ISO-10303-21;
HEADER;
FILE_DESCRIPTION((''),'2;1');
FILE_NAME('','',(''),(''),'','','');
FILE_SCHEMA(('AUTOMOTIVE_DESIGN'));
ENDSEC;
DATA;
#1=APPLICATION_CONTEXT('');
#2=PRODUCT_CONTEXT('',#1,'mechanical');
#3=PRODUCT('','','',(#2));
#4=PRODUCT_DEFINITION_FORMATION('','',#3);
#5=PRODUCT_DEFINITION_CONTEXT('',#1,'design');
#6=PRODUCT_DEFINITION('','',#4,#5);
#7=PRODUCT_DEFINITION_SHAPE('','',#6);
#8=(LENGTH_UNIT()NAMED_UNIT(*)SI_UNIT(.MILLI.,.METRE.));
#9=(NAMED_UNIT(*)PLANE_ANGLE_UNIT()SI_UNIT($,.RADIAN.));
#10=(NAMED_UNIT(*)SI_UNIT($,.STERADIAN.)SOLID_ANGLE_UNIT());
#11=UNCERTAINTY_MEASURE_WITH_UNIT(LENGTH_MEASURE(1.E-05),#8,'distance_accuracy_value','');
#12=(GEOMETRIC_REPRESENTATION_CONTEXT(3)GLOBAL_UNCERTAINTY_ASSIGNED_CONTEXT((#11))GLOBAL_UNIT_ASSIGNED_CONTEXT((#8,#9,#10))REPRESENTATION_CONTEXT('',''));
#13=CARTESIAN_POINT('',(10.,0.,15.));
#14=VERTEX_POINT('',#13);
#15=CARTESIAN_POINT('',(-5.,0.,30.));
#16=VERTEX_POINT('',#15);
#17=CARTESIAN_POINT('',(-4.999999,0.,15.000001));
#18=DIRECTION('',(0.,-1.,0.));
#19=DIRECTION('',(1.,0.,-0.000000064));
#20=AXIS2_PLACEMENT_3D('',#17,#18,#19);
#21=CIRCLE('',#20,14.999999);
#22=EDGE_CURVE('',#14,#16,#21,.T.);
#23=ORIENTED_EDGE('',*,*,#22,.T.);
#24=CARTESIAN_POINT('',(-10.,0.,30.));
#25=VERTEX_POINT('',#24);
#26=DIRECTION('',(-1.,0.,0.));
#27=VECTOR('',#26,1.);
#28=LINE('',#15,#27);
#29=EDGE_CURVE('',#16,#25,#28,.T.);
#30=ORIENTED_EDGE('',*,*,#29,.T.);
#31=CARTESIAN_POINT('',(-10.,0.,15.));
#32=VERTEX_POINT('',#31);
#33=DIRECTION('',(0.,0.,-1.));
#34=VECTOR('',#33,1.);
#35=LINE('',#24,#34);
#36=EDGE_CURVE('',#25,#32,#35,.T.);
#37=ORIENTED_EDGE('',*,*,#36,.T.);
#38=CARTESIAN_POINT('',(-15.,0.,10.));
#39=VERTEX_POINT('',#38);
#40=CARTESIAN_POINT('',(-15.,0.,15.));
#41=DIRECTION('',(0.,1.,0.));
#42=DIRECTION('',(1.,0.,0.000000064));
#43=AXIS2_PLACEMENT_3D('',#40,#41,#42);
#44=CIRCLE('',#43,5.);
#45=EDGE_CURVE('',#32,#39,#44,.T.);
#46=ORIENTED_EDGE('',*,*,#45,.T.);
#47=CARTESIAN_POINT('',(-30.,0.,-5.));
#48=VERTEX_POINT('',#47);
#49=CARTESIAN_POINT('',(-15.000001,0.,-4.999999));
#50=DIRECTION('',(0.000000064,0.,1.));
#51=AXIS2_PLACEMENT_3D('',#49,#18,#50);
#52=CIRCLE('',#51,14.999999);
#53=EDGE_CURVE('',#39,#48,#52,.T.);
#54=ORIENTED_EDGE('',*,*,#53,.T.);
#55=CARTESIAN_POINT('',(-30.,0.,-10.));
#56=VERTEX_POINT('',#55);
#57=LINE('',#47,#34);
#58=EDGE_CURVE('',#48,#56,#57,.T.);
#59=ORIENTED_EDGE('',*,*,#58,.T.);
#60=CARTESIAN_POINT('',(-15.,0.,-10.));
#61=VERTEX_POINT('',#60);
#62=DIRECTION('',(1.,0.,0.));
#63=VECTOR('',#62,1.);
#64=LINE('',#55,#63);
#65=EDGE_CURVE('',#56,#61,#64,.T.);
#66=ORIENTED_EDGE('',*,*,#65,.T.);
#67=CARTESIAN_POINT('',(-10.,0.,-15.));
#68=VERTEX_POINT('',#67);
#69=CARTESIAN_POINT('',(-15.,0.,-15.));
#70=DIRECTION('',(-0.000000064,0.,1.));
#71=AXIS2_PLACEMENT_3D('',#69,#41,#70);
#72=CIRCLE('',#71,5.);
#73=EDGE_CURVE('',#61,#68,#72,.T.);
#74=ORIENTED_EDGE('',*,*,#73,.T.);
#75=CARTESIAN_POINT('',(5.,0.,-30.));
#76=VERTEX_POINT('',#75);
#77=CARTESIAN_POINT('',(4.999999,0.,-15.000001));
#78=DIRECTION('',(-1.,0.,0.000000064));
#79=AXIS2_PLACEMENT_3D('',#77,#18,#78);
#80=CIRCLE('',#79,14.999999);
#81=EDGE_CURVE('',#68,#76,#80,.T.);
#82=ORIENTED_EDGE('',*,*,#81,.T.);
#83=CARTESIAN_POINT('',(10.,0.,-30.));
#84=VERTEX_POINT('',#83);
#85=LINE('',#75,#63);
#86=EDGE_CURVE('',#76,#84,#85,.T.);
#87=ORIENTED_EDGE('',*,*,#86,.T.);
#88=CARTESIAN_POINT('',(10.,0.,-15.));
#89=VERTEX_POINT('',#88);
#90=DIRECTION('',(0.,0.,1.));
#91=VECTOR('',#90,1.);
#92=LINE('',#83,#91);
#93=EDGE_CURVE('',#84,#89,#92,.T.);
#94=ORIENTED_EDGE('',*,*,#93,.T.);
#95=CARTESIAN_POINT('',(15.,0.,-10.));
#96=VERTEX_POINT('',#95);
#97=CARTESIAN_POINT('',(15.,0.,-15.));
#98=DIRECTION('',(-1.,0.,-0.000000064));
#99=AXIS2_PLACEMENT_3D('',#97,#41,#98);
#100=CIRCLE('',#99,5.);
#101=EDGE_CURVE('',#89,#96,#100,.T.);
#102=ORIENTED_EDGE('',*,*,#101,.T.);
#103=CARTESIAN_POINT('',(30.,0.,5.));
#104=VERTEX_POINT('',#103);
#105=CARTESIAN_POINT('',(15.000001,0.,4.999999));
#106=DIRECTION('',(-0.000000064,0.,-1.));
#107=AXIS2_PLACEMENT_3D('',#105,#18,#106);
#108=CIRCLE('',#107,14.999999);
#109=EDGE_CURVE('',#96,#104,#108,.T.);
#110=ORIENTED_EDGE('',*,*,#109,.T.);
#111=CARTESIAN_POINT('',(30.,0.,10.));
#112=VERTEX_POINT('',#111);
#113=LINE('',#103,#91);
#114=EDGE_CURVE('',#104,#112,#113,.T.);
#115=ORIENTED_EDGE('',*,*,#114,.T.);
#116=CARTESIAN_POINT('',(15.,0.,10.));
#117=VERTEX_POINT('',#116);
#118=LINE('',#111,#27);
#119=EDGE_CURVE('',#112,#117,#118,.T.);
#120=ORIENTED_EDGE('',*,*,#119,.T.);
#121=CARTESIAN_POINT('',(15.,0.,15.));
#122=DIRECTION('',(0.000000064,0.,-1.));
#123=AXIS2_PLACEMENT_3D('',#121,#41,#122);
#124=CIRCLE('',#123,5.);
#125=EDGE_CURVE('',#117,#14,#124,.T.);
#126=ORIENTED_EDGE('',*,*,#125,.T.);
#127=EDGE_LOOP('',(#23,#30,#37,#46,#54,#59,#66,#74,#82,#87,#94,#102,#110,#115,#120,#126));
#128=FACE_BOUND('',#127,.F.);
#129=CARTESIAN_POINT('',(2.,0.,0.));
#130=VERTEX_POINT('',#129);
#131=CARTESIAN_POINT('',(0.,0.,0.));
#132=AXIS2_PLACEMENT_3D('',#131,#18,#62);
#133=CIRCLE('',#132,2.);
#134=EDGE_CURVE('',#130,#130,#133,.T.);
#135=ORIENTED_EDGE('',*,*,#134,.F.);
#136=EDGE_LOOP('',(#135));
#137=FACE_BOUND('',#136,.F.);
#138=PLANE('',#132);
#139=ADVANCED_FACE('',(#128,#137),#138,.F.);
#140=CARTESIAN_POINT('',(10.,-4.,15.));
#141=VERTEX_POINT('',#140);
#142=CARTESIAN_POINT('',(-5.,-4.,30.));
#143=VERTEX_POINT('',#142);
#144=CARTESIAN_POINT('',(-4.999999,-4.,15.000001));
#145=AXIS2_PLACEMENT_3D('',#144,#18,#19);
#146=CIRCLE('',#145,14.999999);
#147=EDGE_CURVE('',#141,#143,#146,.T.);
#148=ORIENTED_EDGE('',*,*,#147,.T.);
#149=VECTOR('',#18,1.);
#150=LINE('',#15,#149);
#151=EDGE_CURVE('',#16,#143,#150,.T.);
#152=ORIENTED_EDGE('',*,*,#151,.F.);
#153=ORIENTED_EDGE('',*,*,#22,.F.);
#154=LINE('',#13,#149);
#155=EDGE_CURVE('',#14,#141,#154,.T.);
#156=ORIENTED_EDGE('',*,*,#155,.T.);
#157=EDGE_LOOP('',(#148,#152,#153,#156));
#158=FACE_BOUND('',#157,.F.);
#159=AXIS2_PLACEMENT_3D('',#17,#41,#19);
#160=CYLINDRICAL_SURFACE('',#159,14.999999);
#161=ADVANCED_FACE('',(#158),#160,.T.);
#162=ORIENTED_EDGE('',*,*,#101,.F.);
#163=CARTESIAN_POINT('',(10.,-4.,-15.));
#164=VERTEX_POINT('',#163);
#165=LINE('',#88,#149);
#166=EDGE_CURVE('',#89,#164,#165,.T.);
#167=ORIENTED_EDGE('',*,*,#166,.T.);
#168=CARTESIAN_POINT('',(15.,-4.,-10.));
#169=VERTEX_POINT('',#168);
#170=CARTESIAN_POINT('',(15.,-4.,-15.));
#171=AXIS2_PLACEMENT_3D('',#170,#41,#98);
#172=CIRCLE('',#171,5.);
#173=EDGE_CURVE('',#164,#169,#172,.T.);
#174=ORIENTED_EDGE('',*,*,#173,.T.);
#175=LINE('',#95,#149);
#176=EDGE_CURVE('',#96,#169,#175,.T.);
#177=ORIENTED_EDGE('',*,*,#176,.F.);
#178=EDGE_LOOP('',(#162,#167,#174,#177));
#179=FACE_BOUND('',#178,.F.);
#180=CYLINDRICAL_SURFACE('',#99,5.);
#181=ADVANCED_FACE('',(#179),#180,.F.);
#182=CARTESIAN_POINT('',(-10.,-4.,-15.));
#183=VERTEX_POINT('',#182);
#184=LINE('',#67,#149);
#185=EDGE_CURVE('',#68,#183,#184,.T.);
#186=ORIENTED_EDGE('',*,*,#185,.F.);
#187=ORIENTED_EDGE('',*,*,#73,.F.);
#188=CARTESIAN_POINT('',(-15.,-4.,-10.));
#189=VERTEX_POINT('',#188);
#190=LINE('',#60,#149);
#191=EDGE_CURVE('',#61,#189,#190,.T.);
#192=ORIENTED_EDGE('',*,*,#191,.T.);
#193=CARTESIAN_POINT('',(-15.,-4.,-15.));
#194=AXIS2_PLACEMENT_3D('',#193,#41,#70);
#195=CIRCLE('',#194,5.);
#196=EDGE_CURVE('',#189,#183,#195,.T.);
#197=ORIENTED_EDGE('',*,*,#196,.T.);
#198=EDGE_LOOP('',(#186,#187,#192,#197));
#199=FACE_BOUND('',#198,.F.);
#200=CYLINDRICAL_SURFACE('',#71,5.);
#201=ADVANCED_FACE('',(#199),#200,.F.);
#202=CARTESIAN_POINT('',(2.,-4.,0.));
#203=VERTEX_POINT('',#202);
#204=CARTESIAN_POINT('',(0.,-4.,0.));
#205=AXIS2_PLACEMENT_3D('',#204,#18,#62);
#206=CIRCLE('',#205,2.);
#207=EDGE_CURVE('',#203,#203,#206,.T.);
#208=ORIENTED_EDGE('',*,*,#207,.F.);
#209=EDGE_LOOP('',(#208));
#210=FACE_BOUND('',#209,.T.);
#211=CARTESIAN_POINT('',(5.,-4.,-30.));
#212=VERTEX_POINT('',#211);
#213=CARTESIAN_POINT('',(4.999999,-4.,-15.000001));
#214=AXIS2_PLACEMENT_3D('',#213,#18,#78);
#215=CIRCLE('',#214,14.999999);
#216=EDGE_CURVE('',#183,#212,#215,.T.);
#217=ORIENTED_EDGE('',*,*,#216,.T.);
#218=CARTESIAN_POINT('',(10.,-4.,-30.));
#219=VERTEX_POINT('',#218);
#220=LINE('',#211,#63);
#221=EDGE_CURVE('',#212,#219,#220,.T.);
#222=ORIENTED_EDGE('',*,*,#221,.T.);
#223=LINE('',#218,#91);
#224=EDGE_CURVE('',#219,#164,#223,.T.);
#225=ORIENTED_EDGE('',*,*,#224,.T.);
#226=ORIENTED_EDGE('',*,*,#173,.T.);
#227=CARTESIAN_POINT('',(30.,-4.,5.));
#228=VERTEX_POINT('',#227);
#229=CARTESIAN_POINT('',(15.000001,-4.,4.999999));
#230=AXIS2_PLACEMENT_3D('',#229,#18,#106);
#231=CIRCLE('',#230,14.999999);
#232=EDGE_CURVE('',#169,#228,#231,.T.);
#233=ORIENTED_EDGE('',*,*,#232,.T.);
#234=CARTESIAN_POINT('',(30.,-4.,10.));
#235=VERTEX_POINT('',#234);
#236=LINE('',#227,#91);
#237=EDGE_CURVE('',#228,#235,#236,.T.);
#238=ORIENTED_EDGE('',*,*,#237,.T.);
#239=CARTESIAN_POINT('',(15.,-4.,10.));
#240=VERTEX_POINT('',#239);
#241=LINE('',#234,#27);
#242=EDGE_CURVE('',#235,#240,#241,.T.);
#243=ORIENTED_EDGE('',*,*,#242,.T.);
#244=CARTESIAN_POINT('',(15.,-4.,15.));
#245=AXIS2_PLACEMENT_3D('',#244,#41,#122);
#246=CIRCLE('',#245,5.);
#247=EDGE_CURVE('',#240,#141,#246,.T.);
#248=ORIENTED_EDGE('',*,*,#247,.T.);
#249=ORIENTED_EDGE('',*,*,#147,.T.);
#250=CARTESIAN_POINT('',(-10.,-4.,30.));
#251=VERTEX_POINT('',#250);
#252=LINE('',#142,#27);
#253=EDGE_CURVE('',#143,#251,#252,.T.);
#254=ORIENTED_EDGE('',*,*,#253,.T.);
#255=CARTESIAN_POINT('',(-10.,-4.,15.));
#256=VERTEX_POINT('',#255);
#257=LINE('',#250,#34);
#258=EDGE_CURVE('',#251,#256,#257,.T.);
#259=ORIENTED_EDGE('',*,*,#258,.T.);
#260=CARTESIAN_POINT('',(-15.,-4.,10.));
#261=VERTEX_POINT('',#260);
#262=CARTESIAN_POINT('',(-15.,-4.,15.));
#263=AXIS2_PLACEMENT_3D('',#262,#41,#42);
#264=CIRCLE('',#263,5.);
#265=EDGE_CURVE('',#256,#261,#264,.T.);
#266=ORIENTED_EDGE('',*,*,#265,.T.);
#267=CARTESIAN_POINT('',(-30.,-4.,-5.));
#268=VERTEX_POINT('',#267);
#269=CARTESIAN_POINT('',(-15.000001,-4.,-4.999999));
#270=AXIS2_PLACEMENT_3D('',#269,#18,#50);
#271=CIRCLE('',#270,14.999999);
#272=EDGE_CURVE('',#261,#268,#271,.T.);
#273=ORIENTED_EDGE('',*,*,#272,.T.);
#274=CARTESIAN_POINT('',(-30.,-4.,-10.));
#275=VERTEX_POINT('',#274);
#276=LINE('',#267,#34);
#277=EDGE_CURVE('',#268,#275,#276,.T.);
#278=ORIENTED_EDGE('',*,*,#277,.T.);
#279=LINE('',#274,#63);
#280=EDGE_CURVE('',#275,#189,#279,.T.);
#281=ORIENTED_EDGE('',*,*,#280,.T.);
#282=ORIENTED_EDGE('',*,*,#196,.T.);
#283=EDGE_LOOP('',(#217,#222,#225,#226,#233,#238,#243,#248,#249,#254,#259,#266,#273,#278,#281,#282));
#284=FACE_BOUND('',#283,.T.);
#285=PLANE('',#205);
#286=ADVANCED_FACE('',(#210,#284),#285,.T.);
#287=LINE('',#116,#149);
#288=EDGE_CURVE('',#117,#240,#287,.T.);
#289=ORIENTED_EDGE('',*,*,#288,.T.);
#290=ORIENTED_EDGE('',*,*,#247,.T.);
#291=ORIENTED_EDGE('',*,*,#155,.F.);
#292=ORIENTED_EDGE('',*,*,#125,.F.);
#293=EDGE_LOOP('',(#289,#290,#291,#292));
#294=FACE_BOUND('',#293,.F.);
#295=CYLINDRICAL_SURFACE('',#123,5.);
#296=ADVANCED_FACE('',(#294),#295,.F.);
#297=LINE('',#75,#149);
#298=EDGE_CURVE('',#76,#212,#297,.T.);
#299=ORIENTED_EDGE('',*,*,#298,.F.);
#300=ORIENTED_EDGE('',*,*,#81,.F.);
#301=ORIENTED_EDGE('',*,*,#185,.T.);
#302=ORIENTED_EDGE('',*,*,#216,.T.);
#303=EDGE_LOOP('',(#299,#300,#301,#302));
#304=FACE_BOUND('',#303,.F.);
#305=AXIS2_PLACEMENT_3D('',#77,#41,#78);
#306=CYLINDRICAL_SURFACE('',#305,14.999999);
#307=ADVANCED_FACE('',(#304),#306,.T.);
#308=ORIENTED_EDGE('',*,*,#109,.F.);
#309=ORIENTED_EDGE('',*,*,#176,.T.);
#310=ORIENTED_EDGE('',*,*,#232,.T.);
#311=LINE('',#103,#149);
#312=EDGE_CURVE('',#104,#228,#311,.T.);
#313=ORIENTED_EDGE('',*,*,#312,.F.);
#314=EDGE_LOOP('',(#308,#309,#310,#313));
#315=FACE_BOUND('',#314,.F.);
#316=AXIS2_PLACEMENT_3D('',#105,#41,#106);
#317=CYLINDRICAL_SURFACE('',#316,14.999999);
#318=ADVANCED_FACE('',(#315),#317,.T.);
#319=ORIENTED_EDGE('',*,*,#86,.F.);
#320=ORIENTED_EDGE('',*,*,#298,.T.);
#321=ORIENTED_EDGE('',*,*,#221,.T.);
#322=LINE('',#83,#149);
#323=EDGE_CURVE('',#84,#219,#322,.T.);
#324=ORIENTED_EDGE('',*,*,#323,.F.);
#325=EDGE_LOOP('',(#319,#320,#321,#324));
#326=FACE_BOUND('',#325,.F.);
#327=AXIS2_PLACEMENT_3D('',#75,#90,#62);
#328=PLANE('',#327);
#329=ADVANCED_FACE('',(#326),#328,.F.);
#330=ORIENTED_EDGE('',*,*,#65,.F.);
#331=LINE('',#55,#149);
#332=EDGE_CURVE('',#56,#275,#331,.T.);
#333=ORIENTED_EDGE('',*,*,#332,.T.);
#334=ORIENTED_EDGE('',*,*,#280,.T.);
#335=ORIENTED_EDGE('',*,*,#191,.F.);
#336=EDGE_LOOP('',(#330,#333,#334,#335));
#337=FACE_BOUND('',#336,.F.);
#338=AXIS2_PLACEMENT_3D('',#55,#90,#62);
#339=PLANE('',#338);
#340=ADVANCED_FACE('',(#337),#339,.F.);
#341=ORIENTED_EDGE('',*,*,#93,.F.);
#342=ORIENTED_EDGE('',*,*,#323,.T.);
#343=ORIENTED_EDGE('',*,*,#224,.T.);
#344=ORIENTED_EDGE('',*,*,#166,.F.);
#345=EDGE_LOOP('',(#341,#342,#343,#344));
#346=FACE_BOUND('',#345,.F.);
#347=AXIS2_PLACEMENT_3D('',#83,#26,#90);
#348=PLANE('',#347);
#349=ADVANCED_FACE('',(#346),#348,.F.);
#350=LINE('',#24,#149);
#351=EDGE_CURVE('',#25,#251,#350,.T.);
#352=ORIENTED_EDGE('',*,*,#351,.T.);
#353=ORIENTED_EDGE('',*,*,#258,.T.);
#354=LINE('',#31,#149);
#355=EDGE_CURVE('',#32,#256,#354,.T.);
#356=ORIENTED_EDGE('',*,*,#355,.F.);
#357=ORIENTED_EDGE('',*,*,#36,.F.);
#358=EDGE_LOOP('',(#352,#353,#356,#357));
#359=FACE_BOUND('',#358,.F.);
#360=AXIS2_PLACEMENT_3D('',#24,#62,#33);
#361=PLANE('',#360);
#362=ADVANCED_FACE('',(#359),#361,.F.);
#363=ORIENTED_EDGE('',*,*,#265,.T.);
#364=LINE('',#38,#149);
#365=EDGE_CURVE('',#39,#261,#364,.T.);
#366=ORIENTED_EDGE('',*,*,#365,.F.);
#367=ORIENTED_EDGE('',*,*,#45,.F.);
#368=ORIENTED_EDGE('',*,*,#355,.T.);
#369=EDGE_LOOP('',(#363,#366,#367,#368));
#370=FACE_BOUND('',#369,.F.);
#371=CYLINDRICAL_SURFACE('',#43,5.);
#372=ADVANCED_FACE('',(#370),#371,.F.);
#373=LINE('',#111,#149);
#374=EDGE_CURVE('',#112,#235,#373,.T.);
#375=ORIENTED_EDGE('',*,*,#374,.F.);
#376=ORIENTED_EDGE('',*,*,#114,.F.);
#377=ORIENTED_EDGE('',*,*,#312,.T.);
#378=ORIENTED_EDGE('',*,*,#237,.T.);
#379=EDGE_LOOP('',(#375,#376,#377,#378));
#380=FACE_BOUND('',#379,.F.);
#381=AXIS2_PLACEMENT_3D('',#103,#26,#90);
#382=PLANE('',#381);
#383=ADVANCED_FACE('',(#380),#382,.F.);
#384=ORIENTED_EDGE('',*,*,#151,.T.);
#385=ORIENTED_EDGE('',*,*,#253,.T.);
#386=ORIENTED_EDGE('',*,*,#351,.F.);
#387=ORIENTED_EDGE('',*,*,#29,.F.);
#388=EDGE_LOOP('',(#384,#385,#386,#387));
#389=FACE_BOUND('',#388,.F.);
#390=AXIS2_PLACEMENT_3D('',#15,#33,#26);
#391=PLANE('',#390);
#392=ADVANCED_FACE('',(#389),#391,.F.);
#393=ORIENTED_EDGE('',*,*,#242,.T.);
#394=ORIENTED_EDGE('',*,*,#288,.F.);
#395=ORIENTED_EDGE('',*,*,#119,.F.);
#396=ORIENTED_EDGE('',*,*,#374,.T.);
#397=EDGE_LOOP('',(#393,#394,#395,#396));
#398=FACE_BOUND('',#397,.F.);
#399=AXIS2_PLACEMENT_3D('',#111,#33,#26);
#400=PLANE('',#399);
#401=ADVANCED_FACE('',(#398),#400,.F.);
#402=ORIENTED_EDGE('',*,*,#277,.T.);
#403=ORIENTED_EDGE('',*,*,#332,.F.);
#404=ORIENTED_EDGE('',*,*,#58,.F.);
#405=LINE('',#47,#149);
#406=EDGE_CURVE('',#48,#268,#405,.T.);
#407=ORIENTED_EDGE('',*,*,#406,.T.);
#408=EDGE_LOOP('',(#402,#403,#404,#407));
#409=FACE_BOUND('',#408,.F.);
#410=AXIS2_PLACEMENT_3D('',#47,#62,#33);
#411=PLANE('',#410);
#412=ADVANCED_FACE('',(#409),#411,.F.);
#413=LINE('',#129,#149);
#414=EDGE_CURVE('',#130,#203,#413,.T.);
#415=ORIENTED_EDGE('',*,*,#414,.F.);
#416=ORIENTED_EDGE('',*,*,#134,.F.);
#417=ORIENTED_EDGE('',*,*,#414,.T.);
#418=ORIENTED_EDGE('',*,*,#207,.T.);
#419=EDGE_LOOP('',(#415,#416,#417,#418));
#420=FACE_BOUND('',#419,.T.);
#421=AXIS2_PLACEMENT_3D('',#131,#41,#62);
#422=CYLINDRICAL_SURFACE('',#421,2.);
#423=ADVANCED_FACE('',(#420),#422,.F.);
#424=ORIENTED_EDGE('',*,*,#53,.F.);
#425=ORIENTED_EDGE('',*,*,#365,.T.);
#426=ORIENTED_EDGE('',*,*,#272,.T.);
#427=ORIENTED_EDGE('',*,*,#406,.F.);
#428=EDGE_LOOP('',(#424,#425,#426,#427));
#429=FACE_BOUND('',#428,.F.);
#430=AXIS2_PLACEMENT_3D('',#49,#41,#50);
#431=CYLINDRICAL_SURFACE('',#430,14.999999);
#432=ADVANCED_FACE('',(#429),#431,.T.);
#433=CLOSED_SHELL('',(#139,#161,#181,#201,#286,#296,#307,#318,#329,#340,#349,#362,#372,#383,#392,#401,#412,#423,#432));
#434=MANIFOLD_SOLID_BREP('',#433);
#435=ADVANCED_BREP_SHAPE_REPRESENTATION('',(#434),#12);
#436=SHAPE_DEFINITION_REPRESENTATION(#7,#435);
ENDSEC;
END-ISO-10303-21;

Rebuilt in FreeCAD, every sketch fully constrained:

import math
import FreeCAD as App
import Part
import Sketcher
from FreeCAD import Vector

doc = App.newDocument("Part")
body = doc.addObject("PartDesign::Body", "Body")

sketch1 = body.newObject("Sketcher::SketchObject", "Sketch")
sketch1.AttachmentSupport = (doc.getObject("XZ_Plane"), [""])
sketch1.MapMode = "FlatFace"
sketch1.addGeometry([
    Part.ArcOfCircle(Part.Circle(Vector(-5, 15, 0), Vector(0, 0, 1), 15), math.radians(0), math.radians(90)),
    Part.LineSegment(Vector(-5, 30, 0), Vector(-10, 30, 0)),
    Part.LineSegment(Vector(-10, 30, 0), Vector(-10, 15, 0)),
    Part.ArcOfCircle(Part.Circle(Vector(-15, 15, 0), Vector(0, 0, 1), 5), math.radians(-90), math.radians(0)),
    Part.ArcOfCircle(Part.Circle(Vector(-15, -5, 0), Vector(0, 0, 1), 15), math.radians(90), math.radians(180)),
    Part.LineSegment(Vector(-30, -5, 0), Vector(-30, -10, 0)),
    Part.LineSegment(Vector(-30, -10, 0), Vector(-15, -10, 0)),
    Part.ArcOfCircle(Part.Circle(Vector(-15, -15, 0), Vector(0, 0, 1), 5), math.radians(0), math.radians(90)),
    Part.ArcOfCircle(Part.Circle(Vector(5, -15, 0), Vector(0, 0, 1), 15), math.radians(180), math.radians(270)),
    Part.LineSegment(Vector(5, -30, 0), Vector(10, -30, 0)),
    Part.LineSegment(Vector(10, -30, 0), Vector(10, -15, 0)),
    Part.ArcOfCircle(Part.Circle(Vector(15, -15, 0), Vector(0, 0, 1), 5), math.radians(90), math.radians(180)),
    Part.ArcOfCircle(Part.Circle(Vector(15, 5, 0), Vector(0, 0, 1), 15), math.radians(-90), math.radians(0)),
    Part.LineSegment(Vector(30, 5, 0), Vector(30, 10, 0)),
    Part.LineSegment(Vector(30, 10, 0), Vector(15, 10, 0)),
    Part.ArcOfCircle(Part.Circle(Vector(15, 15, 0), Vector(0, 0, 1), 5), math.radians(180), math.radians(270)),
    Part.Circle(Vector(0, 0, 0), Vector(0, 0, 1), 2),
], False)
sketch1.addConstraint([
    Sketcher.Constraint("Tangent", 0, 2, 1, 1),
    Sketcher.Constraint("Coincident", 1, 2, 2, 1),
    Sketcher.Constraint("Tangent", 2, 2, 3, 2),
    Sketcher.Constraint("Tangent", 3, 1, 4, 1),
    Sketcher.Constraint("Tangent", 4, 2, 5, 1),
    Sketcher.Constraint("Coincident", 5, 2, 6, 1),
    Sketcher.Constraint("Tangent", 6, 2, 7, 2),
    Sketcher.Constraint("Tangent", 7, 1, 8, 1),
    Sketcher.Constraint("Tangent", 8, 2, 9, 1),
    Sketcher.Constraint("Coincident", 9, 2, 10, 1),
    Sketcher.Constraint("Tangent", 10, 2, 11, 2),
    Sketcher.Constraint("Tangent", 11, 1, 12, 1),
    Sketcher.Constraint("Tangent", 12, 2, 13, 1),
    Sketcher.Constraint("Coincident", 13, 2, 14, 1),
    Sketcher.Constraint("Tangent", 14, 2, 15, 2),
    Sketcher.Constraint("Tangent", 15, 1, 0, 1),
    Sketcher.Constraint("Horizontal", 1),
    Sketcher.Constraint("Vertical", 2),
    Sketcher.Constraint("Vertical", 5),
    Sketcher.Constraint("Horizontal", 6),
    Sketcher.Constraint("Horizontal", 9),
    Sketcher.Constraint("Vertical", 10),
    Sketcher.Constraint("Vertical", 13),
    Sketcher.Constraint("Horizontal", 14),
    Sketcher.Constraint("Coincident", 16, 3, -1, 1),
    Sketcher.Constraint("Equal", 0, 4),
    Sketcher.Constraint("Equal", 3, 7),
    Sketcher.Constraint("Equal", 4, 8),
    Sketcher.Constraint("Equal", 7, 11),
    Sketcher.Constraint("Equal", 8, 12),
    Sketcher.Constraint("Equal", 11, 15),
    Sketcher.Constraint("Symmetric", 0, 3, 8, 3, -1, 1),
    Sketcher.Constraint("Symmetric", 3, 3, 11, 3, -1, 1),
    Sketcher.Constraint("Symmetric", 5, 2, 13, 2, -1, 1),
    Sketcher.Constraint("Symmetric", 7, 3, 11, 3, -2),
    Sketcher.Constraint("Horizontal", 0, 3, 3, 3),
    Sketcher.Constraint("Vertical", 3, 3, 4, 3),
    Sketcher.Constraint("Equal", 9, 5),
    Sketcher.Constraint("Diameter", 16, 4.0),
    Sketcher.Constraint("Radius", 0, 14.999999),
    Sketcher.Constraint("Radius", 3, 5.0),
    Sketcher.Constraint("DistanceX", 1, 2, 1, 1, 5.0),
])
pad1 = body.newObject("PartDesign::Pad", "Pad")
pad1.Profile = sketch1
pad1.Length = 4

doc.recompute()
